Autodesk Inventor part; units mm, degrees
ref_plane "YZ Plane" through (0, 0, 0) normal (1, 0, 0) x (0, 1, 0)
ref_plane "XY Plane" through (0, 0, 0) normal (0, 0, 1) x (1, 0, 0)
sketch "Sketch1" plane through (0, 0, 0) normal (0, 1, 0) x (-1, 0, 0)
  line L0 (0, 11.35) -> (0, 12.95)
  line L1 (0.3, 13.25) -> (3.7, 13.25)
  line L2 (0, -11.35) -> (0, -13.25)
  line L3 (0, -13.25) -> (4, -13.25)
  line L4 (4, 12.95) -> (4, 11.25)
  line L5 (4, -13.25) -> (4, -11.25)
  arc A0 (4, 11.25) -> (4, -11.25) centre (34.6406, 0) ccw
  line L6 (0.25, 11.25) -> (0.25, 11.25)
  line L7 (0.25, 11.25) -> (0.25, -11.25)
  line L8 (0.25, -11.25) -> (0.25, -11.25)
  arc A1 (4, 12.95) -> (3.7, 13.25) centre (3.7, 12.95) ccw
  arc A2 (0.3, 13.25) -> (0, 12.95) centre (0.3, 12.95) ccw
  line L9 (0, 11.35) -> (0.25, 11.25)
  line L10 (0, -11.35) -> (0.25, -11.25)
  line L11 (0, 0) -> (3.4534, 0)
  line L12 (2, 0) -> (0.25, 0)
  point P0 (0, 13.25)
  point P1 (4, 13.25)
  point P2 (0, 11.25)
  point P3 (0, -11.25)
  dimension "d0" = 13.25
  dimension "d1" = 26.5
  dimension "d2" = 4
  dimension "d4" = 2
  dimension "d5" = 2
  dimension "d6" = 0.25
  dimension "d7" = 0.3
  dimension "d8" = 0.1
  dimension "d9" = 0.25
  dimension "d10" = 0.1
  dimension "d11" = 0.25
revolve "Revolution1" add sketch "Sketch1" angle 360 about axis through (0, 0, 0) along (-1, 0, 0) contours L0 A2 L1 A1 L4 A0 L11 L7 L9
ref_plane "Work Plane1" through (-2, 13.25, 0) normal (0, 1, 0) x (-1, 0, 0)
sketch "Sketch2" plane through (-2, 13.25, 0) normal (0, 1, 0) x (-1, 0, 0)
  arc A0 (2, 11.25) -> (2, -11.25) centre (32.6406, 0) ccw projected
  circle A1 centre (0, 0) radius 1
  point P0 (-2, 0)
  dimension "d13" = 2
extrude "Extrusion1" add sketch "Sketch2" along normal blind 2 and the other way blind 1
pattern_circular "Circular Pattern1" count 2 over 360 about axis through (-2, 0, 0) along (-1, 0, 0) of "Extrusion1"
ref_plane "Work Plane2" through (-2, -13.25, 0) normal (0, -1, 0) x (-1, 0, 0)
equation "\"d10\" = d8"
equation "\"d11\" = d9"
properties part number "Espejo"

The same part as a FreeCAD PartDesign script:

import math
import FreeCAD as App
import Part
import Sketcher

V = App.Vector

doc = App.newDocument("Part")
params = doc.addObject("Spreadsheet::Sheet", "Params")
for row, (alias, value) in enumerate([
    ("sketch1_radius", "0.3 mm"),
    ("revolution_angle", "360 deg"),
    ("sketch2_diameter", "2 mm"),
    ("pad1_length", "2 mm"),
    ("pad1_length2", "1 mm"),
], start=1):
    params.set(f"A{row}", alias)
    params.set(f"B{row}", "=" + value)
    params.setAlias(f"B{row}", alias)

body = doc.addObject("PartDesign::Body", "Body")

# Sketch on XZ plane
sketch1 = doc.addObject("Sketcher::SketchObject", "Sketch")
body.addObject(sketch1)
sketch1.AttachmentSupport = (doc.XZ_Plane, [""])
sketch1.MapMode = "FlatFace"
sketch1.addGeometry(Part.LineSegment(V(0, 12.95, 0), V(0, 11.35, 0)), False)
sketch1.addGeometry(Part.LineSegment(V(0, 11.35, 0), V(-0.25, 11.25, 0)), False)
sketch1.addGeometry(Part.LineSegment(V(-0.25, 11.25, 0), V(-0.25, 0, 0)), False)
sketch1.addGeometry(Part.LineSegment(V(-0.25, 0, 0), V(-2, 0, 0)), False)
sketch1.addGeometry(Part.ArcOfCircle(Part.Circle(V(-34.64, 0, 0), V(0, 0, 1), 32.64), math.radians(0), math.radians(20)), False)
sketch1.addGeometry(Part.LineSegment(V(-4, 11.25, 0), V(-4, 12.95, 0)), False)
sketch1.addGeometry(Part.ArcOfCircle(Part.Circle(V(-3.7, 12.95, 0), V(0, 0, 1), 0.3), math.radians(90), math.radians(180)), False)
sketch1.addGeometry(Part.LineSegment(V(-3.7, 13.25, 0), V(-0.3, 13.25, 0)), False)
sketch1.addGeometry(Part.ArcOfCircle(Part.Circle(V(-0.3, 12.95, 0), V(0, 0, 1), 0.3), math.radians(0), math.radians(90)), False)
sketch1.addConstraint(Sketcher.Constraint("Coincident", 0, 2, 1, 1))
sketch1.addConstraint(Sketcher.Constraint("Coincident", 1, 2, 2, 1))
sketch1.addConstraint(Sketcher.Constraint("Coincident", 2, 2, 3, 1))
sketch1.addConstraint(Sketcher.Constraint("Coincident", 3, 2, 4, 1))
sketch1.addConstraint(Sketcher.Constraint("Coincident", 4, 2, 5, 1))
sketch1.addConstraint(Sketcher.Constraint("Tangent", 5, 2, 6, 2))
sketch1.addConstraint(Sketcher.Constraint("Tangent", 6, 1, 7, 1))
sketch1.addConstraint(Sketcher.Constraint("Tangent", 7, 2, 8, 2))
sketch1.addConstraint(Sketcher.Constraint("Tangent", 8, 1, 0, 1))
sketch1.addConstraint(Sketcher.Constraint("Vertical", 0))
sketch1.addConstraint(Sketcher.Constraint("Vertical", 2))
sketch1.addConstraint(Sketcher.Constraint("Horizontal", 3))
sketch1.addConstraint(Sketcher.Constraint("Vertical", 5))
sketch1.addConstraint(Sketcher.Constraint("Horizontal", 7))
sketch1.addConstraint(Sketcher.Constraint("Equal", 6, 8))
sketch1.addConstraint(Sketcher.Constraint("PointOnObject", 4, 3, -1))
sketch1.addConstraint(Sketcher.Constraint("PointOnObject", 0, 2, -2))
sketch1.addConstraint(Sketcher.Constraint("PointOnObject", 2, 2, -1))
sketch1.addConstraint(Sketcher.Constraint("Horizontal", 1, 2, 4, 2))
sketch1.addConstraint(Sketcher.Constraint("Radius", 6, 0.3))
sketch1.addConstraint(Sketcher.Constraint("DistanceX", 3, 2, -1, 1, 2.0))
sketch1.addConstraint(Sketcher.Constraint("DistanceX", 4, 2, -1, 1, 4.0))
sketch1.addConstraint(Sketcher.Constraint("DistanceY", 4, 2, 6, 1, 2.0))
sketch1.addConstraint(Sketcher.Constraint("DistanceY", 1, 2, 0, 2, 0.1))
sketch1.addConstraint(Sketcher.Constraint("DistanceX", 1, 2, -1, 1, 0.25))
sketch1.addConstraint(Sketcher.Constraint("DistanceY", -1, 1, 6, 1, 13.25))
sketch1.setExpression("Constraints[19]", "Params.sketch1_radius")
revolution = doc.addObject("PartDesign::Revolution", "Revolution")
body.addObject(revolution)
revolution.Profile = sketch1
revolution.ReferenceAxis = (sketch1, ["H_Axis"])
revolution.setExpression("Angle", "Params.revolution_angle")

# Sketch on XZ plane
sketch2 = doc.addObject("Sketcher::SketchObject", "Sketch001")
body.addObject(sketch2)
sketch2.AttachmentSupport = (doc.XZ_Plane, [""])
sketch2.MapMode = "FlatFace"
sketch2.AttachmentOffset = App.Placement(V(0, 0, -13.25), App.Rotation())
sketch2.addGeometry(Part.Circle(V(-2, 0, 0), V(0, 0, 1), 1), False)
sketch2.addConstraint(Sketcher.Constraint("PointOnObject", 0, 3, -1))
sketch2.addConstraint(Sketcher.Constraint("Diameter", 0, 2.0))
sketch2.addConstraint(Sketcher.Constraint("DistanceX", 0, 3, -1, 1, 2.0))
sketch2.setExpression("Constraints[1]", "Params.sketch2_diameter")
pad1 = doc.addObject("PartDesign::Pad", "Pad")
body.addObject(pad1)
pad1.Profile = sketch2
pad1.Type = "TwoLengths"
pad1.setExpression("Length", "Params.pad1_length")
pad1.setExpression("Length2", "Params.pad1_length2")
pad1.Reversed = True
doc.recompute()

polarpattern = doc.addObject("PartDesign::PolarPattern", "PolarPattern")
body.addObject(polarpattern)
polarpattern.Originals = [pad1]
polarpattern.Axis = (doc.X_Axis, [""])
polarpattern.Angle = 360
polarpattern.Occurrences = 2
body.Tip = polarpattern

doc.recompute()
